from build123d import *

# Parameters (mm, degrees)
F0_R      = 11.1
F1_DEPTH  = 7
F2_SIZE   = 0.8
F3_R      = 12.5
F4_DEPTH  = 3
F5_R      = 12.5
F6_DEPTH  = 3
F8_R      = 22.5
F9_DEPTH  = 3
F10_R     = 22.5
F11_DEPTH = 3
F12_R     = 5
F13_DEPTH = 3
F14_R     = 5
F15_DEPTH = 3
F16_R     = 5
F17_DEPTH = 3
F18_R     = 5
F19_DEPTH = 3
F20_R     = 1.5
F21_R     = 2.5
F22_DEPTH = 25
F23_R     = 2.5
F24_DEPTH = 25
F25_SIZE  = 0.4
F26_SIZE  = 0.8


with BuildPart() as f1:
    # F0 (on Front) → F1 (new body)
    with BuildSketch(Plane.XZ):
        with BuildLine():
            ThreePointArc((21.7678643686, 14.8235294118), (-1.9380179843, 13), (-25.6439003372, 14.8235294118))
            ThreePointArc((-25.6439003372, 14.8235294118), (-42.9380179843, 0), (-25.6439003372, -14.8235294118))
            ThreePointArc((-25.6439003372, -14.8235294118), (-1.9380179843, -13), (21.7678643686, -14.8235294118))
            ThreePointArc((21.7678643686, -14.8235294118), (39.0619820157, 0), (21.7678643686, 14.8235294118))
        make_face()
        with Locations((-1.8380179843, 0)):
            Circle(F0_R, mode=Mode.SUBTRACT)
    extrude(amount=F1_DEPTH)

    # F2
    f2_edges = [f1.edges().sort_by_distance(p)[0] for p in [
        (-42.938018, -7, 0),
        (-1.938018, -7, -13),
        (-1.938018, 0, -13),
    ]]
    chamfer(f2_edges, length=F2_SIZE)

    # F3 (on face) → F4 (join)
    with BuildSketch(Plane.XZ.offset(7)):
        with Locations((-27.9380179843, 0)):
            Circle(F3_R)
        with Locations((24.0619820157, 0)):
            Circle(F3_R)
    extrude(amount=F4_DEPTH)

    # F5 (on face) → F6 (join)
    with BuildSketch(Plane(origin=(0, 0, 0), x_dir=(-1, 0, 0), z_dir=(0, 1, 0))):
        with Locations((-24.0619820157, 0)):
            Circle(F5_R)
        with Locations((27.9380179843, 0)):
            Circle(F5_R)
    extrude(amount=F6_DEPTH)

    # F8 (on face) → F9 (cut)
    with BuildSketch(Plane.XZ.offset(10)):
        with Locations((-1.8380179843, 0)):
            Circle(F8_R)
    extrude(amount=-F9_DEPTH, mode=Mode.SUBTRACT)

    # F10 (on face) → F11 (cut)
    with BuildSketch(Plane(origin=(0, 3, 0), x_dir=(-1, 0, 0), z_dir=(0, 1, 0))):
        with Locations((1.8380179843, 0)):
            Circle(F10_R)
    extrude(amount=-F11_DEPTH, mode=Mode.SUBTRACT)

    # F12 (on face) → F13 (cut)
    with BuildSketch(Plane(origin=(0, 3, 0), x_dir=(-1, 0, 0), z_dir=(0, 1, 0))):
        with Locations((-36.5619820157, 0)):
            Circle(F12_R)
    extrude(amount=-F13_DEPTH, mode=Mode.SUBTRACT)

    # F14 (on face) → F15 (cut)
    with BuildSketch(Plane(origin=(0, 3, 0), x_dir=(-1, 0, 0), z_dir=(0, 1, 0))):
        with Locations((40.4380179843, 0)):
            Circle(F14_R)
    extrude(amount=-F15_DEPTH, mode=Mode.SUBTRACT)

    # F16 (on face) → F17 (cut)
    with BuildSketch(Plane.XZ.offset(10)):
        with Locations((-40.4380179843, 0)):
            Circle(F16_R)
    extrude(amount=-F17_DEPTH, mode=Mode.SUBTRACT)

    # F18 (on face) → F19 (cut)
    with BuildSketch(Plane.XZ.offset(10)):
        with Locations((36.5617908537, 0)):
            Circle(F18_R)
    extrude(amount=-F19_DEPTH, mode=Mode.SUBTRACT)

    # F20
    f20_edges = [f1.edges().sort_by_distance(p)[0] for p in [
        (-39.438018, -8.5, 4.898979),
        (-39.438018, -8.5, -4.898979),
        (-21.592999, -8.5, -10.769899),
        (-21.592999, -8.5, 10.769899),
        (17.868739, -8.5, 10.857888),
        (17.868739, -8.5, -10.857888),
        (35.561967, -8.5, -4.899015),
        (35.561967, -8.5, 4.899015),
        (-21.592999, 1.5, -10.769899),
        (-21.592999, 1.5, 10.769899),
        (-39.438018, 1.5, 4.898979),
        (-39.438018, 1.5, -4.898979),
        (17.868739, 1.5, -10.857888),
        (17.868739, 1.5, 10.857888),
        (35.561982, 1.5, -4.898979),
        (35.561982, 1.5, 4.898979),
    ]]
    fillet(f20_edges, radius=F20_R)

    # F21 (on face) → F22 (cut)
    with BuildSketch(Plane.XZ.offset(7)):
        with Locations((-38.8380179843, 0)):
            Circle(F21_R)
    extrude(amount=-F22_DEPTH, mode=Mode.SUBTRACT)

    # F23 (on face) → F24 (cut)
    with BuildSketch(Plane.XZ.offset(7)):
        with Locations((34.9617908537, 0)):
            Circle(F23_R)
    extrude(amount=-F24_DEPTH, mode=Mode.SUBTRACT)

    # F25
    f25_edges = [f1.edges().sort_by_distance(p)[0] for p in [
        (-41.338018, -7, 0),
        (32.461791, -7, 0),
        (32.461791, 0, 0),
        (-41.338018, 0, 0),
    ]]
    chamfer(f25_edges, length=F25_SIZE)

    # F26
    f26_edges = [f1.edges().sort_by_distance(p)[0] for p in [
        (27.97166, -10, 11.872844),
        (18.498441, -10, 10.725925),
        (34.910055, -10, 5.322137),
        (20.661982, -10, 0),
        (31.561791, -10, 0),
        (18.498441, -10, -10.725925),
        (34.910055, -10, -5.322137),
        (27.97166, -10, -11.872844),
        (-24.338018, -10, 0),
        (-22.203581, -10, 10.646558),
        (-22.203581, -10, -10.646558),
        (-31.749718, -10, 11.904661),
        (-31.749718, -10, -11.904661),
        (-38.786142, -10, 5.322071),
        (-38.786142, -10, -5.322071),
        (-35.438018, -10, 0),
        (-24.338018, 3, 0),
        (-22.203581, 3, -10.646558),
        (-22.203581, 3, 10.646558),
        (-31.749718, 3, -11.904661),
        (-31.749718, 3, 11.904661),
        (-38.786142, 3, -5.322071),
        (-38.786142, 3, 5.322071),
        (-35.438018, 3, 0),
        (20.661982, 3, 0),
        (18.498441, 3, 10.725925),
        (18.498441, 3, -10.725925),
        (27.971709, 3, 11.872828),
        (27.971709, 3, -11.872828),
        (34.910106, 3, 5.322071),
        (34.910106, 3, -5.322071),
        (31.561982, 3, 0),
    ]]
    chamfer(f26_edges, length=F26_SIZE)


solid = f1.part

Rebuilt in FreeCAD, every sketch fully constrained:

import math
import FreeCAD as App
import Part
import Sketcher
from FreeCAD import Vector


def edges_at(feature, points):
    """Names of the edges that pass closest to the given points."""
    edges = feature.Shape.Edges
    near = lambda p: min(range(len(edges)), key=lambda i: edges[i].distToShape(Part.Vertex(*p))[0])
    return sorted({f"Edge{near(p) + 1}" for p in points})

doc = App.newDocument("Part")
body = doc.addObject("PartDesign::Body", "Body")

# Sketch on XZ plane
sketch1 = body.newObject("Sketcher::SketchObject", "Sketch")
sketch1.AttachmentSupport = (doc.getObject("XZ_Plane"), [""])
sketch1.MapMode = "FlatFace"
sketch1.addGeometry([
    Part.ArcOfCircle(Part.Circle(Vector(-1.938018, 168, 0), Vector(0, 0, 1), 155), math.radians(-98.797411), math.radians(-81.202589)),  # 0
    Part.ArcOfCircle(Part.Circle(Vector(-27.938018, 0, 0), Vector(0, 0, 1), 15), math.radians(81.202589), math.radians(278.797411)),  # 1
    Part.ArcOfCircle(Part.Circle(Vector(-1.938018, -168, 0), Vector(0, 0, 1), 155), math.radians(81.202589), math.radians(98.797411)),  # 2
    Part.ArcOfCircle(Part.Circle(Vector(24.061982, 0, 0), Vector(0, 0, 1), 15), math.radians(-98.797411), math.radians(98.797411)),  # 3
    Part.Circle(Vector(-1.838018, 0, 0), Vector(0, 0, 1), 11.1),  # 4
], False)
sketch1.addConstraint([
    Sketcher.Constraint("Tangent", 0, 1, 1, 1),
    Sketcher.Constraint("Tangent", 1, 2, 2, 2),
    Sketcher.Constraint("Tangent", 2, 1, 3, 1),
    Sketcher.Constraint("Tangent", 3, 2, 0, 2),
    Sketcher.Constraint("Equal", 0, 2),
    Sketcher.Constraint("Equal", 1, 3),
    Sketcher.Constraint("Symmetric", 0, 3, 2, 3, -1),
    Sketcher.Constraint("PointOnObject", 4, 3, -1),
    Sketcher.Constraint("Radius", 0, 155.0),
    Sketcher.Constraint("Radius", 1, 15.0),
    Sketcher.Constraint("Diameter", 4, 22.2),
    Sketcher.Constraint("DistanceY", -1, 1, 0, 3, 168.0),
    Sketcher.Constraint("DistanceX", 4, 3, 3, 3, 25.9),
    Sketcher.Constraint("DistanceX", 0, 1, -1, 1, 25.6439),
])
pad1 = body.newObject("PartDesign::Pad", "Pad")
pad1.Profile = sketch1
pad1.Length = 7
doc.recompute()

chamfer = body.newObject("PartDesign::Chamfer", "Chamfer")
chamfer.Base = (pad1, edges_at(pad1, [(-42.938, -7, 0), (-1.938, -7, -13), (-1.938, 0, -13)]))
chamfer.Size = 0.8

# Sketch on XZ plane
sketch2 = body.newObject("Sketcher::SketchObject", "Sketch001")
sketch2.AttachmentSupport = (doc.getObject("XZ_Plane"), [""])
sketch2.MapMode = "FlatFace"
sketch2.AttachmentOffset = App.Placement(Vector(0, 0, 7), App.Rotation())
sketch2.addGeometry([
    Part.Circle(Vector(-27.938018, 0, 0), Vector(0, 0, 1), 12.5),
    Part.Circle(Vector(24.061982, 0, 0), Vector(0, 0, 1), 12.5),
], False)
sketch2.addConstraint([
    Sketcher.Constraint("Equal", 0, 1),
    Sketcher.Constraint("PointOnObject", 0, 3, -1),
    Sketcher.Constraint("PointOnObject", 1, 3, -1),
    Sketcher.Constraint("Diameter", 0, 25.0),
    Sketcher.Constraint("DistanceX", 0, 3, 1, 3, 52.0),
    Sketcher.Constraint("DistanceX", 0, 3, -1, 1, 27.938018),
])
pad2 = body.newObject("PartDesign::Pad", "Pad001")
pad2.Profile = sketch2
pad2.Length = 3

# Sketch on XZ plane
sketch3 = body.newObject("Sketcher::SketchObject", "Sketch002")
sketch3.AttachmentSupport = (doc.getObject("XZ_Plane"), [""])
sketch3.MapMode = "FlatFace"
sketch3.addGeometry([
    Part.Circle(Vector(24.061982, 0, 0), Vector(0, 0, 1), 12.5),
    Part.Circle(Vector(-27.938018, 0, 0), Vector(0, 0, 1), 12.5),
], False)
sketch3.addConstraint([
    Sketcher.Constraint("Equal", 0, 1),
    Sketcher.Constraint("PointOnObject", 0, 3, -1),
    Sketcher.Constraint("PointOnObject", 1, 3, -1),
    Sketcher.Constraint("Diameter", 0, 25.0),
    Sketcher.Constraint("DistanceX", 1, 3, 0, 3, 52.0),
    Sketcher.Constraint("DistanceX", -1, 1, 0, 3, 24.061982),
])
pad3 = body.newObject("PartDesign::Pad", "Pad002")
pad3.Profile = sketch3
pad3.Length = 3
pad3.Reversed = True

# Sketch on XZ plane
sketch4 = body.newObject("Sketcher::SketchObject", "Sketch003")
sketch4.AttachmentSupport = (doc.getObject("XZ_Plane"), [""])
sketch4.MapMode = "FlatFace"
sketch4.AttachmentOffset = App.Placement(Vector(0, 0, 10), App.Rotation())
sketch4.addGeometry(Part.Circle(Vector(-1.838018, 0, 0), Vector(0, 0, 1), 22.5), False)
sketch4.addConstraint([
    Sketcher.Constraint("PointOnObject", 0, 3, -1),
    Sketcher.Constraint("Diameter", 0, 45.0),
    Sketcher.Constraint("DistanceX", 0, 3, -1, 1, 1.838018),
])
pocket1 = body.newObject("PartDesign::Pocket", "Pocket")
pocket1.Profile = sketch4
pocket1.Length = 3

# Sketch on XZ plane
sketch5 = body.newObject("Sketcher::SketchObject", "Sketch004")
sketch5.AttachmentSupport = (doc.getObject("XZ_Plane"), [""])
sketch5.MapMode = "FlatFace"
sketch5.AttachmentOffset = App.Placement(Vector(0, 0, -3), App.Rotation())
sketch5.addGeometry(Part.Circle(Vector(-1.838018, 0, 0), Vector(0, 0, 1), 22.5), False)
sketch5.addConstraint([
    Sketcher.Constraint("PointOnObject", 0, 3, -1),
    Sketcher.Constraint("Diameter", 0, 45.0),
    Sketcher.Constraint("DistanceX", 0, 3, -1, 1, 1.838018),
])
pocket2 = body.newObject("PartDesign::Pocket", "Pocket001")
pocket2.Profile = sketch5
pocket2.Length = 3
pocket2.Reversed = True

# Sketch on XZ plane
sketch6 = body.newObject("Sketcher::SketchObject", "Sketch005")
sketch6.AttachmentSupport = (doc.getObject("XZ_Plane"), [""])
sketch6.MapMode = "FlatFace"
sketch6.AttachmentOffset = App.Placement(Vector(0, 0, -3), App.Rotation())
sketch6.addGeometry(Part.Circle(Vector(36.561982, 0, 0), Vector(0, 0, 1), 5), False)
sketch6.addConstraint([
    Sketcher.Constraint("PointOnObject", 0, 3, -1),
    Sketcher.Constraint("Diameter", 0, 10.0),
    Sketcher.Constraint("DistanceX", -1, 1, 0, 3, 36.561982),
])
pocket3 = body.newObject("PartDesign::Pocket", "Pocket002")
pocket3.Profile = sketch6
pocket3.Length = 3
pocket3.Reversed = True

# Sketch on XZ plane
sketch7 = body.newObject("Sketcher::SketchObject", "Sketch006")
sketch7.AttachmentSupport = (doc.getObject("XZ_Plane"), [""])
sketch7.MapMode = "FlatFace"
sketch7.AttachmentOffset = App.Placement(Vector(0, 0, -3), App.Rotation())
sketch7.addGeometry(Part.Circle(Vector(-40.438018, 0, 0), Vector(0, 0, 1), 5), False)
sketch7.addConstraint([
    Sketcher.Constraint("PointOnObject", 0, 3, -1),
    Sketcher.Constraint("Diameter", 0, 10.0),
    Sketcher.Constraint("DistanceX", 0, 3, -1, 1, 40.438018),
])
pocket4 = body.newObject("PartDesign::Pocket", "Pocket003")
pocket4.Profile = sketch7
pocket4.Length = 3
pocket4.Reversed = True

# Sketch on XZ plane
sketch8 = body.newObject("Sketcher::SketchObject", "Sketch007")
sketch8.AttachmentSupport = (doc.getObject("XZ_Plane"), [""])
sketch8.MapMode = "FlatFace"
sketch8.AttachmentOffset = App.Placement(Vector(0, 0, 10), App.Rotation())
sketch8.addGeometry(Part.Circle(Vector(-40.438018, 0, 0), Vector(0, 0, 1), 5), False)
sketch8.addConstraint([
    Sketcher.Constraint("PointOnObject", 0, 3, -1),
    Sketcher.Constraint("Diameter", 0, 10.0),
    Sketcher.Constraint("DistanceX", 0, 3, -1, 1, 40.438018),
])
pocket5 = body.newObject("PartDesign::Pocket", "Pocket004")
pocket5.Profile = sketch8
pocket5.Length = 3

# Sketch on XZ plane
sketch9 = body.newObject("Sketcher::SketchObject", "Sketch008")
sketch9.AttachmentSupport = (doc.getObject("XZ_Plane"), [""])
sketch9.MapMode = "FlatFace"
sketch9.AttachmentOffset = App.Placement(Vector(0, 0, 10), App.Rotation())
sketch9.addGeometry(Part.Circle(Vector(36.561791, 0, 0), Vector(0, 0, 1), 5), False)
sketch9.addConstraint([
    Sketcher.Constraint("PointOnObject", 0, 3, -1),
    Sketcher.Constraint("Diameter", 0, 10.0),
    Sketcher.Constraint("DistanceX", -1, 1, 0, 3, 36.561791),
])
pocket6 = body.newObject("PartDesign::Pocket", "Pocket005")
pocket6.Profile = sketch9
pocket6.Length = 3
doc.recompute()

fillet = body.newObject("PartDesign::Fillet", "Fillet")
fillet.Base = (pocket6, edges_at(pocket6, [
    (-39.438, -8.5, 4.899),
    (-39.438, -8.5, -4.899),
    (-21.593, -8.5, -10.77),
    (-21.593, -8.5, 10.77),
    (17.869, -8.5, 10.858),
    (17.869, -8.5, -10.858),
    (35.562, -8.5, -4.899),
    (35.562, -8.5, 4.899),
    (-21.593, 1.5, -10.77),
    (-21.593, 1.5, 10.77),
    (-39.438, 1.5, 4.899),
    (-39.438, 1.5, -4.899),
    (17.869, 1.5, -10.858),
    (17.869, 1.5, 10.858),
    (35.562, 1.5, -4.899),
    (35.562, 1.5, 4.899),
]))
fillet.Radius = 1.5

# Sketch on XZ plane
sketch10 = body.newObject("Sketcher::SketchObject", "Sketch009")
sketch10.AttachmentSupport = (doc.getObject("XZ_Plane"), [""])
sketch10.MapMode = "FlatFace"
sketch10.AttachmentOffset = App.Placement(Vector(0, 0, 7), App.Rotation())
sketch10.addGeometry(Part.Circle(Vector(-38.838018, 0, 0), Vector(0, 0, 1), 2.5), False)
sketch10.addConstraint([
    Sketcher.Constraint("PointOnObject", 0, 3, -1),
    Sketcher.Constraint("Diameter", 0, 5.0),
    Sketcher.Constraint("DistanceX", 0, 3, -1, 1, 38.838018),
])
pocket7 = body.newObject("PartDesign::Pocket", "Pocket006")
pocket7.Profile = sketch10
pocket7.Length = 25

# Sketch on XZ plane
sketch11 = body.newObject("Sketcher::SketchObject", "Sketch010")
sketch11.AttachmentSupport = (doc.getObject("XZ_Plane"), [""])
sketch11.MapMode = "FlatFace"
sketch11.AttachmentOffset = App.Placement(Vector(0, 0, 7), App.Rotation())
sketch11.addGeometry(Part.Circle(Vector(34.961791, 0, 0), Vector(0, 0, 1), 2.5), False)
sketch11.addConstraint([
    Sketcher.Constraint("PointOnObject", 0, 3, -1),
    Sketcher.Constraint("Diameter", 0, 5.0),
    Sketcher.Constraint("DistanceX", -1, 1, 0, 3, 34.961791),
])
pocket8 = body.newObject("PartDesign::Pocket", "Pocket007")
pocket8.Profile = sketch11
pocket8.Length = 25
doc.recompute()

chamfer2 = body.newObject("PartDesign::Chamfer", "Chamfer001")
chamfer2.Base = (pocket8, edges_at(pocket8, [
    (-41.338, -7, 0),
    (32.462, -7, 0),
    (32.462, 0, 0),
    (-41.338, 0, 0),
]))
chamfer2.Size = 0.4
doc.recompute()

chamfer3 = body.newObject("PartDesign::Chamfer", "Chamfer002")
chamfer3.Base = (chamfer2, edges_at(chamfer2, [
    (27.972, -10, 11.873),
    (18.498, -10, 10.726),
    (34.91, -10, 5.322),
    (20.662, -10, 0),
    (31.562, -10, 0),
    (18.498, -10, -10.726),
    (34.91, -10, -5.322),
    (27.972, -10, -11.873),
    (-24.338, -10, 0),
    (-22.204, -10, 10.647),
    (-22.204, -10, -10.647),
    (-31.75, -10, 11.905),
    (-31.75, -10, -11.905),
    (-38.786, -10, 5.322),
    (-38.786, -10, -5.322),
    (-35.438, -10, 0),
    (-24.338, 3, 0),
    (-22.204, 3, -10.647),
    (-22.204, 3, 10.647),
    (-31.75, 3, -11.905),
    (-31.75, 3, 11.905),
    (-38.786, 3, -5.322),
    (-38.786, 3, 5.322),
    (-35.438, 3, 0),
    (20.662, 3, 0),
    (18.498, 3, 10.726),
    (18.498, 3, -10.726),
    (27.972, 3, 11.873),
    (27.972, 3, -11.873),
    (34.91, 3, 5.322),
    (34.91, 3, -5.322),
    (31.562, 3, 0),
]))
chamfer3.Size = 0.8

doc.recompute()
